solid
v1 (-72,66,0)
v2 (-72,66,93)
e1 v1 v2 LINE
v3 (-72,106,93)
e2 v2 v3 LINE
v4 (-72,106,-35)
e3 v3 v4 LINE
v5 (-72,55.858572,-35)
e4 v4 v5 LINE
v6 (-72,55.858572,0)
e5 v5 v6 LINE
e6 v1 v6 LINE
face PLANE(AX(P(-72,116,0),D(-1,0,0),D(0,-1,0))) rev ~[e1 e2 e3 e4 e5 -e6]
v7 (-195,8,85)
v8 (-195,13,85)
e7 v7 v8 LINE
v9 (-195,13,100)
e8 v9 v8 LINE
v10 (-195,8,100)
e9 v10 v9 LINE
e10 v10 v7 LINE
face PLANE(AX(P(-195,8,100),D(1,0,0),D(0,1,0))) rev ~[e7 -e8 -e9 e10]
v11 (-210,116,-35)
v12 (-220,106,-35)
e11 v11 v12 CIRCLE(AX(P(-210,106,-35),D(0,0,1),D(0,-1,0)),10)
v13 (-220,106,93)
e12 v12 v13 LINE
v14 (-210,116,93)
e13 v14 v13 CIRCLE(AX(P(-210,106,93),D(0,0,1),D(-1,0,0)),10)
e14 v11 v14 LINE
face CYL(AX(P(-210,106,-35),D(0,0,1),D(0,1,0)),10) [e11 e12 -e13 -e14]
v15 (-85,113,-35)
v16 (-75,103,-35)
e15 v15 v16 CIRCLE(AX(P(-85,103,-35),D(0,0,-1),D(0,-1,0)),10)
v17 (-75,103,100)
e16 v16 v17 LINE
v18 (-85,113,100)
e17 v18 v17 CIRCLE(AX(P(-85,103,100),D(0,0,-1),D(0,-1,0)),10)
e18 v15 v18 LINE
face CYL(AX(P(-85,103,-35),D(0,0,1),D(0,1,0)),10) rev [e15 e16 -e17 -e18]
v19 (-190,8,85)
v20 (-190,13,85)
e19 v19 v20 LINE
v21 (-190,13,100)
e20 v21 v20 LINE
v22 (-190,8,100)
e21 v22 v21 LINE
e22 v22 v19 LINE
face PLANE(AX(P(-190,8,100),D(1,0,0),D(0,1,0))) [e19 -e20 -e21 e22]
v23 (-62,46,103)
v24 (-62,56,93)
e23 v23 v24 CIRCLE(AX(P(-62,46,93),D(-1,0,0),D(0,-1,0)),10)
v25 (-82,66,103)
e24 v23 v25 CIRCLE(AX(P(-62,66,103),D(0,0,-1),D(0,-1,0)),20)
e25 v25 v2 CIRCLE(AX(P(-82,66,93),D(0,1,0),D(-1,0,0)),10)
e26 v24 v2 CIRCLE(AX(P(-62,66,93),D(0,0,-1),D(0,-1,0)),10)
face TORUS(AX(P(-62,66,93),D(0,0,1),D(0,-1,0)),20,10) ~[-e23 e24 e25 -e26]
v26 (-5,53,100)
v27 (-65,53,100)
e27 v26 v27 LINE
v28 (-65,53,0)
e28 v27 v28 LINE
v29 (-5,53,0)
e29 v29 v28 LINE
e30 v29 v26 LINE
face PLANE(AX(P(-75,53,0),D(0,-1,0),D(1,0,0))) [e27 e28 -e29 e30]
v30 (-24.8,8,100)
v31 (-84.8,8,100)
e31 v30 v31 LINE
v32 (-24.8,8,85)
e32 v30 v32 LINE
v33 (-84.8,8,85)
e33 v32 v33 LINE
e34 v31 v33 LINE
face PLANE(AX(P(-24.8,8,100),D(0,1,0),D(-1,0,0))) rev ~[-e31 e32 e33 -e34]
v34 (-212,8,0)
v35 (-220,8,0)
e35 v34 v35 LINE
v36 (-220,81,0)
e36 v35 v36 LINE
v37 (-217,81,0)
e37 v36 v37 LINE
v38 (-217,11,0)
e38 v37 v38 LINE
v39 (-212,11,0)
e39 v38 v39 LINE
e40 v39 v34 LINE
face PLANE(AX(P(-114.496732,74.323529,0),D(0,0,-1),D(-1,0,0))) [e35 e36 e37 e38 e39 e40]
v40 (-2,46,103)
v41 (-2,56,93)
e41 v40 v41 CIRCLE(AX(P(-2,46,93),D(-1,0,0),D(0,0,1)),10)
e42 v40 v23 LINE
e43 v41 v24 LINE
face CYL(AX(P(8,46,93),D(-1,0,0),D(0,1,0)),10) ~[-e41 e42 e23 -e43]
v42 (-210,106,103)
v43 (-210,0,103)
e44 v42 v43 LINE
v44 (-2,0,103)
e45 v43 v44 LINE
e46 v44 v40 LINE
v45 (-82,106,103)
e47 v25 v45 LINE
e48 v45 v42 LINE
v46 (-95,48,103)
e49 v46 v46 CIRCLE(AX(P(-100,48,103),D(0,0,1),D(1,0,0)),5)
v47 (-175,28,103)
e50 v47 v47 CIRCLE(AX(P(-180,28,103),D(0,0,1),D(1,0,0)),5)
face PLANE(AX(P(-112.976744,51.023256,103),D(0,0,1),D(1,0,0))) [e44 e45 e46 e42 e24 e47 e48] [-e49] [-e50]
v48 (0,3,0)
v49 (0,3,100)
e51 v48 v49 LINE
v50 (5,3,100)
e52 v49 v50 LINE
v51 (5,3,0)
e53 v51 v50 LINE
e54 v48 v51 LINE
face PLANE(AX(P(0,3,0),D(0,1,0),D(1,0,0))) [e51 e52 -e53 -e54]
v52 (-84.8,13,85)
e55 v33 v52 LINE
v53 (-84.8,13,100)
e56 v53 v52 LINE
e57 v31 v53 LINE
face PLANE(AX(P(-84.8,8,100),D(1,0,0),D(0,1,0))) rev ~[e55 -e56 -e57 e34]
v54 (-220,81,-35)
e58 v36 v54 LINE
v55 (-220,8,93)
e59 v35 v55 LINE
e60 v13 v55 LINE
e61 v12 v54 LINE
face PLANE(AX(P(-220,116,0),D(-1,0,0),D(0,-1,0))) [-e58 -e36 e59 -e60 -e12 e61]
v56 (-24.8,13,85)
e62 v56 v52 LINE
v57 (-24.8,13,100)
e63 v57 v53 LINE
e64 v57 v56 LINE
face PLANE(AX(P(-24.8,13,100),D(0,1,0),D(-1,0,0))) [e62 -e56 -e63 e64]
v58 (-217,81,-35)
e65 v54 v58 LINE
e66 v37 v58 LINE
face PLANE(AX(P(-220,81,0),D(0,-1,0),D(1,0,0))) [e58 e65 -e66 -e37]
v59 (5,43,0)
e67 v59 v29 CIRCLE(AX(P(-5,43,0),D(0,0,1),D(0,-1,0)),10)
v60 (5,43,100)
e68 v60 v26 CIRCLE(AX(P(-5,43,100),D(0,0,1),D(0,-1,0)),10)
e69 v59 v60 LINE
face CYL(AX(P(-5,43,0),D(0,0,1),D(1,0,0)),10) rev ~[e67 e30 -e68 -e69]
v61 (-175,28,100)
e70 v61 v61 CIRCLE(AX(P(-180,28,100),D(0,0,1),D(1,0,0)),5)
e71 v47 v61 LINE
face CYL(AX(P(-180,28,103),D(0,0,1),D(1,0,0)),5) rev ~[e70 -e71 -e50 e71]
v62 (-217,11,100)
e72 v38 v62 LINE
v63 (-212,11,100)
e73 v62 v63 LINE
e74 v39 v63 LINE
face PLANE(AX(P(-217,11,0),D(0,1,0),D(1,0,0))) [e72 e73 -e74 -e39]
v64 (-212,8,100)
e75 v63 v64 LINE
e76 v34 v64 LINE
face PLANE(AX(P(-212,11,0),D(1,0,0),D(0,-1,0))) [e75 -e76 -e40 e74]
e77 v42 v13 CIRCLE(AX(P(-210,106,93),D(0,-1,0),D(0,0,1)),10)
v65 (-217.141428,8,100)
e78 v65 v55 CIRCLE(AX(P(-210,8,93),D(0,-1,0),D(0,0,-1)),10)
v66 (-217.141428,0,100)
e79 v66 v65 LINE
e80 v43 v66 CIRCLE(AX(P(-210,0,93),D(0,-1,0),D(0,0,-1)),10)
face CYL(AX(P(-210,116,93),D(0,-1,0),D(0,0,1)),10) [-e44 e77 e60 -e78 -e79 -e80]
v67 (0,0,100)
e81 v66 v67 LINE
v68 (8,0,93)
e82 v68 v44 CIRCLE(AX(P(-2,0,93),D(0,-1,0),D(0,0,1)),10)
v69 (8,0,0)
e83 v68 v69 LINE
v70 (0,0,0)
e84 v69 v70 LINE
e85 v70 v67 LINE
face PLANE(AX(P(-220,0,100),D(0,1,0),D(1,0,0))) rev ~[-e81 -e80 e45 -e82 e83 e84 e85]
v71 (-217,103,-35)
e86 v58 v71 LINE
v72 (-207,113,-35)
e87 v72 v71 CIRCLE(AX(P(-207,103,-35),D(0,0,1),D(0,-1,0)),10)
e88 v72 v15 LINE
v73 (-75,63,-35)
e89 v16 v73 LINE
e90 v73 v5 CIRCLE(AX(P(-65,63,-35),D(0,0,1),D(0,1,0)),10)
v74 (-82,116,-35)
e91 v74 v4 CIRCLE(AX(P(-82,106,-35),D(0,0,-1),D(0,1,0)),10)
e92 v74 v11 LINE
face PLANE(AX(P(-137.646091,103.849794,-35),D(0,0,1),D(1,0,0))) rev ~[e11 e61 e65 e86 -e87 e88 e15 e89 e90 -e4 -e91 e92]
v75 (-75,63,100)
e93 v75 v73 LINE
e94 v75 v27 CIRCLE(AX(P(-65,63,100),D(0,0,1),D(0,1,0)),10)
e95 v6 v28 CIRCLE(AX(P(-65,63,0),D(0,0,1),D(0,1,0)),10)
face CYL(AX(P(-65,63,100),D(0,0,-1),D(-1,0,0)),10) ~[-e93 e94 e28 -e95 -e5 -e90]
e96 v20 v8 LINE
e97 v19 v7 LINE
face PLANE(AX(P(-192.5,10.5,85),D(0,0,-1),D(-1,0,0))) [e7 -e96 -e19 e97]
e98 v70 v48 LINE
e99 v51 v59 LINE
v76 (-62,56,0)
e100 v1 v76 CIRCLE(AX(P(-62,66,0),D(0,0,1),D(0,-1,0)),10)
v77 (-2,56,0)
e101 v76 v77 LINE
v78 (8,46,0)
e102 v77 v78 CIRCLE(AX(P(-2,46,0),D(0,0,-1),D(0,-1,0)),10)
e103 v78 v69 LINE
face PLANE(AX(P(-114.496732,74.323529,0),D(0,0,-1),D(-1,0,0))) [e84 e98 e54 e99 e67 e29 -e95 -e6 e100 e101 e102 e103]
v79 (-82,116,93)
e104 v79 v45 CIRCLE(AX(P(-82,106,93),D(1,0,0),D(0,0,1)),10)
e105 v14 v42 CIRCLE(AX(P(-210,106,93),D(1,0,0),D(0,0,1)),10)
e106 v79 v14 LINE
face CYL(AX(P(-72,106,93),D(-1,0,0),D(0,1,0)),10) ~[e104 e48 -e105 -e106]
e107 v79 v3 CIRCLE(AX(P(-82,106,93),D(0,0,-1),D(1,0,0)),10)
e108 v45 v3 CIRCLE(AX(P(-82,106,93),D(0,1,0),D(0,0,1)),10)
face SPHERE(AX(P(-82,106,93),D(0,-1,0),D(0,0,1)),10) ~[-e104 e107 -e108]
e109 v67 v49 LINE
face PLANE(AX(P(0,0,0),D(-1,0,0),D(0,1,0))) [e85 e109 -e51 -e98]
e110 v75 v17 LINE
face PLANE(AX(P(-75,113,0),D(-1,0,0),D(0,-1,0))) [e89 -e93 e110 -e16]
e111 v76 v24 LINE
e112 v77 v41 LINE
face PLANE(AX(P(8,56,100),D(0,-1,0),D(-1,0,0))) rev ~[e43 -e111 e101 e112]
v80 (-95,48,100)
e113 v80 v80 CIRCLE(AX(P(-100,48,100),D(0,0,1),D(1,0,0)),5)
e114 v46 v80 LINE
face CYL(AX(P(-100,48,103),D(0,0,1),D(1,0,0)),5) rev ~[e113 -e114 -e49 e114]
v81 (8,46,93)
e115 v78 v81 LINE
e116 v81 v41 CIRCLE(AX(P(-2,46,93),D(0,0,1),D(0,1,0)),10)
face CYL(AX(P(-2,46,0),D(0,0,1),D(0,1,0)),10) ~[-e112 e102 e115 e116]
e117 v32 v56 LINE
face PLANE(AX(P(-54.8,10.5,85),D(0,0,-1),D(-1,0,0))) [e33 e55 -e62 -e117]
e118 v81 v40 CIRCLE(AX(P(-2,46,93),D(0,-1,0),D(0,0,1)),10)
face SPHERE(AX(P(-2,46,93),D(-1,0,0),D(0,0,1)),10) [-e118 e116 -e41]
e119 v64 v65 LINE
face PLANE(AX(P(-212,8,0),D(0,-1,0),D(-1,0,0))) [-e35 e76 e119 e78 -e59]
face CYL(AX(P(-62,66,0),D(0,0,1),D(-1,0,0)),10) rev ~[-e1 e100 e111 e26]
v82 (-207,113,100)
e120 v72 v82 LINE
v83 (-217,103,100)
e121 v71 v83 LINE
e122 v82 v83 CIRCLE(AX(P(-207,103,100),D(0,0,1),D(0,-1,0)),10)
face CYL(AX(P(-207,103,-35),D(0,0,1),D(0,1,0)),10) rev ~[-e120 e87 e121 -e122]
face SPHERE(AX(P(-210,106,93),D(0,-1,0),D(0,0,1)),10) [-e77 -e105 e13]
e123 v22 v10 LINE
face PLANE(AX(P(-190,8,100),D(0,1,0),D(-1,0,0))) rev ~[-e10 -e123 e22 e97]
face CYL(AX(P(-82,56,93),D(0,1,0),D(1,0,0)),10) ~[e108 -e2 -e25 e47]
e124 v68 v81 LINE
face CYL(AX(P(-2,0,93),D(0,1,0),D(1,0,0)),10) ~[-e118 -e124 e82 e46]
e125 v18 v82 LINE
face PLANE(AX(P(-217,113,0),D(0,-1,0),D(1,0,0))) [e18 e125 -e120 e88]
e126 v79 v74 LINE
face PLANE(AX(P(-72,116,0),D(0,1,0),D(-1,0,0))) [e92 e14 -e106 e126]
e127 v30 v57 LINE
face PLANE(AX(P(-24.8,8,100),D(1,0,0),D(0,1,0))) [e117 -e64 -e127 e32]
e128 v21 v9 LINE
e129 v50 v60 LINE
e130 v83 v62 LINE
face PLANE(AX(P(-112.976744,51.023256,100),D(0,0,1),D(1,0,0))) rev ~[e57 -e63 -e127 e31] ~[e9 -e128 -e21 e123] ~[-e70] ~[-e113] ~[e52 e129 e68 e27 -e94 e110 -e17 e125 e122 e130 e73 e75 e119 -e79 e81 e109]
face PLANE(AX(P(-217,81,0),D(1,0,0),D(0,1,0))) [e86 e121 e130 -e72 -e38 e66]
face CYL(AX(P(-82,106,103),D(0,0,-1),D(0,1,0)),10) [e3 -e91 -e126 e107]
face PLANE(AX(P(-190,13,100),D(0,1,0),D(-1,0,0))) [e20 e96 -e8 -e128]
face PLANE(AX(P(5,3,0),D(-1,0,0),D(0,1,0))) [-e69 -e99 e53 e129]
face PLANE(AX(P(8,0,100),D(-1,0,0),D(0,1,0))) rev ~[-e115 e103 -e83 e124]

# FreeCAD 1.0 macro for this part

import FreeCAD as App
import Part
import Sketcher
from FreeCAD import Vector
Q = App.Units.Quantity


def edges_at(feature, points):
    """Names of the edges that pass closest to the given points."""
    edges = feature.Shape.Edges
    near = lambda p: min(range(len(edges)), key=lambda i: edges[i].distToShape(Part.Vertex(*p))[0])
    return sorted({f"Edge{near(p) + 1}" for p in points})

doc = App.newDocument("Part")
body = doc.addObject("PartDesign::Body", "Body")

# Sketch on XY plane
sketch1 = body.newObject("Sketcher::SketchObject", "Sketch")
sketch1.AttachmentSupport = (doc.getObject("XY_Plane"), [""])
sketch1.MapMode = "FlatFace"
sketch1.addGeometry(Part.LineSegment(Vector(-220, 8, 0), Vector(-212, 8, 0)), False)
sketch1.addGeometry(Part.LineSegment(Vector(-212, 8, 0), Vector(-212, 11, 0)), False)
sketch1.addGeometry(Part.LineSegment(Vector(-212, 11, 0), Vector(-217, 11, 0)), False)
sketch1.addGeometry(Part.LineSegment(Vector(-217, 11, 0), Vector(-217, 113, 0)), False)
sketch1.addGeometry(Part.LineSegment(Vector(-217, 113, 0), Vector(-75, 113, 0)), False)
sketch1.addGeometry(Part.LineSegment(Vector(-75, 113, 0), Vector(-75, 53, 0)), False)
sketch1.addGeometry(Part.LineSegment(Vector(-75, 53, 0), Vector(5, 53, 0)), False)
sketch1.addGeometry(Part.LineSegment(Vector(5, 53, 0), Vector(5, 3, 0)), False)
sketch1.addGeometry(Part.LineSegment(Vector(5, 3, 0), Vector(0, 3, 0)), False)
sketch1.addGeometry(Part.LineSegment(Vector(0, 3, 0), Vector(0, 0, 0)), False)
sketch1.addGeometry(Part.LineSegment(Vector(0, 0, 0), Vector(8, 0, 0)), False)
sketch1.addGeometry(Part.LineSegment(Vector(8, 0, 0), Vector(8, 56, 0)), False)
sketch1.addGeometry(Part.LineSegment(Vector(8, 56, 0), Vector(-72, 56, 0)), False)
sketch1.addGeometry(Part.LineSegment(Vector(-72, 56, 0), Vector(-72, 116, 0)), False)
sketch1.addGeometry(Part.LineSegment(Vector(-72, 116, 0), Vector(-220, 116, 0)), False)
sketch1.addGeometry(Part.LineSegment(Vector(-220, 116, 0), Vector(-220, 8, 0)), False)
sketch1.addConstraint(Sketcher.Constraint("Coincident", 0, 2, 1, 1))
sketch1.addConstraint(Sketcher.Constraint("Coincident", 1, 2, 2, 1))
sketch1.addConstraint(Sketcher.Constraint("Coincident", 2, 2, 3, 1))
sketch1.addConstraint(Sketcher.Constraint("Coincident", 3, 2, 4, 1))
sketch1.addConstraint(Sketcher.Constraint("Coincident", 4, 2, 5, 1))
sketch1.addConstraint(Sketcher.Constraint("Coincident", 5, 2, 6, 1))
sketch1.addConstraint(Sketcher.Constraint("Coincident", 6, 2, 7, 1))
sketch1.addConstraint(Sketcher.Constraint("Coincident", 7, 2, 8, 1))
sketch1.addConstraint(Sketcher.Constraint("Coincident", 8, 2, 9, 1))
sketch1.addConstraint(Sketcher.Constraint("Coincident", 9, 2, 10, 1))
sketch1.addConstraint(Sketcher.Constraint("Coincident", 10, 2, 11, 1))
sketch1.addConstraint(Sketcher.Constraint("Coincident", 11, 2, 12, 1))
sketch1.addConstraint(Sketcher.Constraint("Coincident", 12, 2, 13, 1))
sketch1.addConstraint(Sketcher.Constraint("Coincident", 13, 2, 14, 1))
sketch1.addConstraint(Sketcher.Constraint("Coincident", 14, 2, 15, 1))
sketch1.addConstraint(Sketcher.Constraint("Coincident", 15, 2, 0, 1))
sketch1.addConstraint(Sketcher.Constraint("Horizontal", 0))
sketch1.addConstraint(Sketcher.Constraint("Vertical", 1))
sketch1.addConstraint(Sketcher.Constraint("Horizontal", 2))
sketch1.addConstraint(Sketcher.Constraint("Vertical", 3))
sketch1.addConstraint(Sketcher.Constraint("Horizontal", 4))
sketch1.addConstraint(Sketcher.Constraint("Vertical", 5))
sketch1.addConstraint(Sketcher.Constraint("Horizontal", 6))
sketch1.addConstraint(Sketcher.Constraint("Vertical", 7))
sketch1.addConstraint(Sketcher.Constraint("Horizontal", 8))
sketch1.addConstraint(Sketcher.Constraint("Vertical", 9))
sketch1.addConstraint(Sketcher.Constraint("Horizontal", 10))
sketch1.addConstraint(Sketcher.Constraint("Vertical", 11))
sketch1.addConstraint(Sketcher.Constraint("Horizontal", 12))
sketch1.addConstraint(Sketcher.Constraint("Vertical", 13))
sketch1.addConstraint(Sketcher.Constraint("Horizontal", 14))
sketch1.addConstraint(Sketcher.Constraint("Vertical", 15))
sketch1.addConstraint(Sketcher.Constraint("Coincident", 9, 2, -1, 1))
sketch1.addConstraint(Sketcher.Constraint("Equal", 2, 8))
sketch1.addConstraint(Sketcher.Constraint("Equal", 0, 10))
sketch1.addConstraint(Sketcher.Constraint("Equal", 6, 12))
sketch1.addConstraint(Sketcher.Constraint("Equal", 1, 9))
sketch1.addConstraint(Sketcher.Constraint("Equal", 5, 13))
sketch1.addConstraint(Sketcher.Constraint("DistanceX", 0, 1, 0, 2, Q("8 mm")))
sketch1.addConstraint(Sketcher.Constraint("DistanceX", 2, 2, 2, 1, Q("5 mm")))
sketch1.addConstraint(Sketcher.Constraint("DistanceX", 4, 1, 4, 2, Q("142 mm")))
sketch1.addConstraint(Sketcher.Constraint("DistanceX", 6, 1, 6, 2, Q("80 mm")))
sketch1.addConstraint(Sketcher.Constraint("DistanceY", 1, 1, 1, 2, Q("3 mm")))
sketch1.addConstraint(Sketcher.Constraint("DistanceY", 3, 1, 3, 2, Q("102 mm")))
sketch1.addConstraint(Sketcher.Constraint("DistanceY", 5, 2, 5, 1, Q("60 mm")))
sketch1.addConstraint(Sketcher.Constraint("DistanceY", 7, 2, 7, 1, Q("50 mm")))
sketch1.addConstraint(Sketcher.Constraint("DistanceY", 11, 1, 11, 2, Q("56 mm")))
pad1 = body.newObject("PartDesign::Pad", "Pad")
pad1.Profile = sketch1
pad1.Length = 100

# Sketch on XY plane
sketch2 = body.newObject("Sketcher::SketchObject", "Sketch001")
sketch2.AttachmentSupport = (doc.getObject("XY_Plane"), [""])
sketch2.MapMode = "FlatFace"
sketch2.AttachmentOffset = App.Placement(Vector(0, 0, 100), App.Rotation())
sketch2.addGeometry(Part.LineSegment(Vector(8, 0, 0), Vector(8, 56, 0)), False)
sketch2.addGeometry(Part.LineSegment(Vector(8, 56, 0), Vector(-72, 56, 0)), False)
sketch2.addGeometry(Part.LineSegment(Vector(-72, 56, 0), Vector(-72, 116, 0)), False)
sketch2.addGeometry(Part.LineSegment(Vector(-72, 116, 0), Vector(-220, 116, 0)), False)
sketch2.addGeometry(Part.LineSegment(Vector(-220, 116, 0), Vector(-220, 0, 0)), False)
sketch2.addGeometry(Part.LineSegment(Vector(-220, 0, 0), Vector(8, 0, 0)), False)
sketch2.addConstraint(Sketcher.Constraint("Coincident", 0, 2, 1, 1))
sketch2.addConstraint(Sketcher.Constraint("Coincident", 1, 2, 2, 1))
sketch2.addConstraint(Sketcher.Constraint("Coincident", 2, 2, 3, 1))
sketch2.addConstraint(Sketcher.Constraint("Coincident", 3, 2, 4, 1))
sketch2.addConstraint(Sketcher.Constraint("Coincident", 4, 2, 5, 1))
sketch2.addConstraint(Sketcher.Constraint("Coincident", 5, 2, 0, 1))
sketch2.addConstraint(Sketcher.Constraint("Vertical", 0))
sketch2.addConstraint(Sketcher.Constraint("Horizontal", 1))
sketch2.addConstraint(Sketcher.Constraint("Vertical", 2))
sketch2.addConstraint(Sketcher.Constraint("Horizontal", 3))
sketch2.addConstraint(Sketcher.Constraint("Vertical", 4))
sketch2.addConstraint(Sketcher.Constraint("Horizontal", 5))
sketch2.addConstraint(Sketcher.Constraint("PointOnObject", 4, 2, -1))
sketch2.addConstraint(Sketcher.Constraint("DistanceX", 1, 2, 1, 1, Q("80 mm")))
sketch2.addConstraint(Sketcher.Constraint("DistanceX", 3, 2, 3, 1, Q("148 mm")))
sketch2.addConstraint(Sketcher.Constraint("DistanceY", 0, 1, 0, 2, Q("56 mm")))
sketch2.addConstraint(Sketcher.Constraint("DistanceY", 2, 1, 2, 2, Q("60 mm")))
sketch2.addConstraint(Sketcher.Constraint("DistanceX", -1, 1, 0, 2, Q("8 mm")))
pad2 = body.newObject("PartDesign::Pad", "Pad001")
pad2.Profile = sketch2
pad2.Length = 3

# Sketch on XY plane
sketch3 = body.newObject("Sketcher::SketchObject", "Sketch002")
sketch3.AttachmentSupport = (doc.getObject("XY_Plane"), [""])
sketch3.MapMode = "FlatFace"
sketch3.AttachmentOffset = App.Placement(Vector(0, 0, 103), App.Rotation())
sketch3.addGeometry(Part.Circle(Vector(-180, 28, 0), Vector(0, 0, 1), 5), False)
sketch3.addGeometry(Part.Circle(Vector(-100, 48, 0), Vector(0, 0, 1), 5), False)
sketch3.addConstraint(Sketcher.Constraint("Equal", 0, 1))
sketch3.addConstraint(Sketcher.Constraint("Diameter", 0, Q("10 mm")))
sketch3.addConstraint(Sketcher.Constraint("DistanceX", 0, 3, -1, 1, Q("180 mm")))
sketch3.addConstraint(Sketcher.Constraint("DistanceY", -1, 1, 0, 3, Q("28 mm")))
sketch3.addConstraint(Sketcher.Constraint("DistanceX", 1, 3, -1, 1, Q("100 mm")))
sketch3.addConstraint(Sketcher.Constraint("DistanceY", -1, 1, 1, 3, Q("48 mm")))
pocket1 = body.newObject("PartDesign::Pocket", "Pocket")
pocket1.Profile = sketch3
pocket1.Length = 3

# Sketch on XY plane
sketch4 = body.newObject("Sketcher::SketchObject", "Sketch003")
sketch4.AttachmentSupport = (doc.getObject("XY_Plane"), [""])
sketch4.MapMode = "FlatFace"
sketch4.AttachmentOffset = App.Placement(Vector(0, 0, 100), App.Rotation())
sketch4.addGeometry(Part.LineSegment(Vector(-190, 13, 0), Vector(-190, 8, 0)), False)
sketch4.addGeometry(Part.LineSegment(Vector(-190, 8, 0), Vector(-195, 8, 0)), False)
sketch4.addGeometry(Part.LineSegment(Vector(-195, 8, 0), Vector(-195, 13, 0)), False)
sketch4.addGeometry(Part.LineSegment(Vector(-195, 13, 0), Vector(-190, 13, 0)), False)
sketch4.addGeometry(Part.LineSegment(Vector(-25, 13, 0), Vector(-25, 8, 0)), False)
sketch4.addGeometry(Part.LineSegment(Vector(-25, 8, 0), Vector(-85, 8, 0)), False)
sketch4.addGeometry(Part.LineSegment(Vector(-85, 8, 0), Vector(-85, 13, 0)), False)
sketch4.addGeometry(Part.LineSegment(Vector(-85, 13, 0), Vector(-25, 13, 0)), False)
sketch4.addConstraint(Sketcher.Constraint("Coincident", 0, 2, 1, 1))
sketch4.addConstraint(Sketcher.Constraint("Coincident", 1, 2, 2, 1))
sketch4.addConstraint(Sketcher.Constraint("Coincident", 2, 2, 3, 1))
sketch4.addConstraint(Sketcher.Constraint("Coincident", 3, 2, 0, 1))
sketch4.addConstraint(Sketcher.Constraint("Coincident", 4, 2, 5, 1))
sketch4.addConstraint(Sketcher.Constraint("Coincident", 5, 2, 6, 1))
sketch4.addConstraint(Sketcher.Constraint("Coincident", 6, 2, 7, 1))
sketch4.addConstraint(Sketcher.Constraint("Coincident", 7, 2, 4, 1))
sketch4.addConstraint(Sketcher.Constraint("Vertical", 0))
sketch4.addConstraint(Sketcher.Constraint("Horizontal", 1))
sketch4.addConstraint(Sketcher.Constraint("Vertical", 2))
sketch4.addConstraint(Sketcher.Constraint("Horizontal", 3))
sketch4.addConstraint(Sketcher.Constraint("Vertical", 4))
sketch4.addConstraint(Sketcher.Constraint("Horizontal", 5))
sketch4.addConstraint(Sketcher.Constraint("Vertical", 6))
sketch4.addConstraint(Sketcher.Constraint("Horizontal", 7))
sketch4.addConstraint(Sketcher.Constraint("Horizontal", 1, 2, 4, 2))
sketch4.addConstraint(Sketcher.Constraint("Horizontal", 3, 2, 6, 2))
sketch4.addConstraint(Sketcher.Constraint("Equal", 3, 0))
sketch4.addConstraint(Sketcher.Constraint("DistanceX", 1, 2, 1, 1, Q("5 mm")))
sketch4.addConstraint(Sketcher.Constraint("DistanceX", 5, 2, 5, 1, Q("60 mm")))
sketch4.addConstraint(Sketcher.Constraint("DistanceX", 0, 2, -1, 1, Q("190 mm")))
sketch4.addConstraint(Sketcher.Constraint("DistanceY", -1, 1, 0, 2, Q("8 mm")))
sketch4.addConstraint(Sketcher.Constraint("DistanceX", 4, 2, -1, 1, Q("24.8 mm")))
pad3 = body.newObject("PartDesign::Pad", "Pad002")
pad3.Profile = sketch4
pad3.Length = 15
pad3.Reversed = True

# Sketch on XY plane
sketch5 = body.newObject("Sketcher::SketchObject", "Sketch004")
sketch5.AttachmentSupport = (doc.getObject("XY_Plane"), [""])
sketch5.MapMode = "FlatFace"
sketch5.addGeometry(Part.LineSegment(Vector(-220, 116, 0), Vector(-72, 116, 0)), False)
sketch5.addGeometry(Part.LineSegment(Vector(-72, 116, 0), Vector(-72, 53, 0)), False)
sketch5.addGeometry(Part.LineSegment(Vector(-72, 53, 0), Vector(-75, 53, 0)), False)
sketch5.addGeometry(Part.LineSegment(Vector(-75, 53, 0), Vector(-75, 113, 0)), False)
sketch5.addGeometry(Part.LineSegment(Vector(-75, 113, 0), Vector(-217, 113, 0)), False)
sketch5.addGeometry(Part.LineSegment(Vector(-217, 113, 0), Vector(-217, 81, 0)), False)
sketch5.addGeometry(Part.LineSegment(Vector(-217, 81, 0), Vector(-220, 81, 0)), False)
sketch5.addGeometry(Part.LineSegment(Vector(-220, 81, 0), Vector(-220, 116, 0)), False)
sketch5.addConstraint(Sketcher.Constraint("Coincident", 0, 2, 1, 1))
sketch5.addConstraint(Sketcher.Constraint("Coincident", 1, 2, 2, 1))
sketch5.addConstraint(Sketcher.Constraint("Coincident", 2, 2, 3, 1))
sketch5.addConstraint(Sketcher.Constraint("Coincident", 3, 2, 4, 1))
sketch5.addConstraint(Sketcher.Constraint("Coincident", 4, 2, 5, 1))
sketch5.addConstraint(Sketcher.Constraint("Coincident", 5, 2, 6, 1))
sketch5.addConstraint(Sketcher.Constraint("Coincident", 6, 2, 7, 1))
sketch5.addConstraint(Sketcher.Constraint("Coincident", 7, 2, 0, 1))
sketch5.addConstraint(Sketcher.Constraint("Horizontal", 0))
sketch5.addConstraint(Sketcher.Constraint("Vertical", 1))
sketch5.addConstraint(Sketcher.Constraint("Horizontal", 2))
sketch5.addConstraint(Sketcher.Constraint("Vertical", 3))
sketch5.addConstraint(Sketcher.Constraint("Horizontal", 4))
sketch5.addConstraint(Sketcher.Constraint("Vertical", 5))
sketch5.addConstraint(Sketcher.Constraint("Horizontal", 6))
sketch5.addConstraint(Sketcher.Constraint("Vertical", 7))
sketch5.addConstraint(Sketcher.Constraint("Equal", 2, 6))
sketch5.addConstraint(Sketcher.Constraint("DistanceX", 0, 1, 0, 2, Q("148 mm")))
sketch5.addConstraint(Sketcher.Constraint("DistanceX", 2, 2, 2, 1, Q("3 mm")))
sketch5.addConstraint(Sketcher.Constraint("DistanceY", 1, 2, 1, 1, Q("63 mm")))
sketch5.addConstraint(Sketcher.Constraint("DistanceY", 3, 1, 3, 2, Q("60 mm")))
sketch5.addConstraint(Sketcher.Constraint("DistanceY", 5, 2, 5, 1, Q("32 mm")))
sketch5.addConstraint(Sketcher.Constraint("DistanceX", 0, 2, -1, 1, Q("72 mm")))
sketch5.addConstraint(Sketcher.Constraint("DistanceY", -1, 1, 0, 2, Q("116 mm")))
pad4 = body.newObject("PartDesign::Pad", "Pad003")
pad4.Profile = sketch5
pad4.Length = 35
pad4.Reversed = True
doc.recompute()

fillet = body.newObject("PartDesign::Fillet", "Fillet")
fillet.Base = (pad4, edges_at(pad4, [
    (-32, 56, 103),
    (-220, 58, 103),
    (8, 28, 103),
    (-72, 86, 103),
    (-146, 116, 103),
    (-220, 116, 34),
    (-217, 113, 32.5),
    (5, 53, 50),
    (8, 56, 51.5),
    (-75, 53, 32.5),
    (-75, 113, 32.5),
    (-72, 56, 51.5),
    (-72, 116, 34),
]))
fillet.Radius = 10

doc.recompute()
